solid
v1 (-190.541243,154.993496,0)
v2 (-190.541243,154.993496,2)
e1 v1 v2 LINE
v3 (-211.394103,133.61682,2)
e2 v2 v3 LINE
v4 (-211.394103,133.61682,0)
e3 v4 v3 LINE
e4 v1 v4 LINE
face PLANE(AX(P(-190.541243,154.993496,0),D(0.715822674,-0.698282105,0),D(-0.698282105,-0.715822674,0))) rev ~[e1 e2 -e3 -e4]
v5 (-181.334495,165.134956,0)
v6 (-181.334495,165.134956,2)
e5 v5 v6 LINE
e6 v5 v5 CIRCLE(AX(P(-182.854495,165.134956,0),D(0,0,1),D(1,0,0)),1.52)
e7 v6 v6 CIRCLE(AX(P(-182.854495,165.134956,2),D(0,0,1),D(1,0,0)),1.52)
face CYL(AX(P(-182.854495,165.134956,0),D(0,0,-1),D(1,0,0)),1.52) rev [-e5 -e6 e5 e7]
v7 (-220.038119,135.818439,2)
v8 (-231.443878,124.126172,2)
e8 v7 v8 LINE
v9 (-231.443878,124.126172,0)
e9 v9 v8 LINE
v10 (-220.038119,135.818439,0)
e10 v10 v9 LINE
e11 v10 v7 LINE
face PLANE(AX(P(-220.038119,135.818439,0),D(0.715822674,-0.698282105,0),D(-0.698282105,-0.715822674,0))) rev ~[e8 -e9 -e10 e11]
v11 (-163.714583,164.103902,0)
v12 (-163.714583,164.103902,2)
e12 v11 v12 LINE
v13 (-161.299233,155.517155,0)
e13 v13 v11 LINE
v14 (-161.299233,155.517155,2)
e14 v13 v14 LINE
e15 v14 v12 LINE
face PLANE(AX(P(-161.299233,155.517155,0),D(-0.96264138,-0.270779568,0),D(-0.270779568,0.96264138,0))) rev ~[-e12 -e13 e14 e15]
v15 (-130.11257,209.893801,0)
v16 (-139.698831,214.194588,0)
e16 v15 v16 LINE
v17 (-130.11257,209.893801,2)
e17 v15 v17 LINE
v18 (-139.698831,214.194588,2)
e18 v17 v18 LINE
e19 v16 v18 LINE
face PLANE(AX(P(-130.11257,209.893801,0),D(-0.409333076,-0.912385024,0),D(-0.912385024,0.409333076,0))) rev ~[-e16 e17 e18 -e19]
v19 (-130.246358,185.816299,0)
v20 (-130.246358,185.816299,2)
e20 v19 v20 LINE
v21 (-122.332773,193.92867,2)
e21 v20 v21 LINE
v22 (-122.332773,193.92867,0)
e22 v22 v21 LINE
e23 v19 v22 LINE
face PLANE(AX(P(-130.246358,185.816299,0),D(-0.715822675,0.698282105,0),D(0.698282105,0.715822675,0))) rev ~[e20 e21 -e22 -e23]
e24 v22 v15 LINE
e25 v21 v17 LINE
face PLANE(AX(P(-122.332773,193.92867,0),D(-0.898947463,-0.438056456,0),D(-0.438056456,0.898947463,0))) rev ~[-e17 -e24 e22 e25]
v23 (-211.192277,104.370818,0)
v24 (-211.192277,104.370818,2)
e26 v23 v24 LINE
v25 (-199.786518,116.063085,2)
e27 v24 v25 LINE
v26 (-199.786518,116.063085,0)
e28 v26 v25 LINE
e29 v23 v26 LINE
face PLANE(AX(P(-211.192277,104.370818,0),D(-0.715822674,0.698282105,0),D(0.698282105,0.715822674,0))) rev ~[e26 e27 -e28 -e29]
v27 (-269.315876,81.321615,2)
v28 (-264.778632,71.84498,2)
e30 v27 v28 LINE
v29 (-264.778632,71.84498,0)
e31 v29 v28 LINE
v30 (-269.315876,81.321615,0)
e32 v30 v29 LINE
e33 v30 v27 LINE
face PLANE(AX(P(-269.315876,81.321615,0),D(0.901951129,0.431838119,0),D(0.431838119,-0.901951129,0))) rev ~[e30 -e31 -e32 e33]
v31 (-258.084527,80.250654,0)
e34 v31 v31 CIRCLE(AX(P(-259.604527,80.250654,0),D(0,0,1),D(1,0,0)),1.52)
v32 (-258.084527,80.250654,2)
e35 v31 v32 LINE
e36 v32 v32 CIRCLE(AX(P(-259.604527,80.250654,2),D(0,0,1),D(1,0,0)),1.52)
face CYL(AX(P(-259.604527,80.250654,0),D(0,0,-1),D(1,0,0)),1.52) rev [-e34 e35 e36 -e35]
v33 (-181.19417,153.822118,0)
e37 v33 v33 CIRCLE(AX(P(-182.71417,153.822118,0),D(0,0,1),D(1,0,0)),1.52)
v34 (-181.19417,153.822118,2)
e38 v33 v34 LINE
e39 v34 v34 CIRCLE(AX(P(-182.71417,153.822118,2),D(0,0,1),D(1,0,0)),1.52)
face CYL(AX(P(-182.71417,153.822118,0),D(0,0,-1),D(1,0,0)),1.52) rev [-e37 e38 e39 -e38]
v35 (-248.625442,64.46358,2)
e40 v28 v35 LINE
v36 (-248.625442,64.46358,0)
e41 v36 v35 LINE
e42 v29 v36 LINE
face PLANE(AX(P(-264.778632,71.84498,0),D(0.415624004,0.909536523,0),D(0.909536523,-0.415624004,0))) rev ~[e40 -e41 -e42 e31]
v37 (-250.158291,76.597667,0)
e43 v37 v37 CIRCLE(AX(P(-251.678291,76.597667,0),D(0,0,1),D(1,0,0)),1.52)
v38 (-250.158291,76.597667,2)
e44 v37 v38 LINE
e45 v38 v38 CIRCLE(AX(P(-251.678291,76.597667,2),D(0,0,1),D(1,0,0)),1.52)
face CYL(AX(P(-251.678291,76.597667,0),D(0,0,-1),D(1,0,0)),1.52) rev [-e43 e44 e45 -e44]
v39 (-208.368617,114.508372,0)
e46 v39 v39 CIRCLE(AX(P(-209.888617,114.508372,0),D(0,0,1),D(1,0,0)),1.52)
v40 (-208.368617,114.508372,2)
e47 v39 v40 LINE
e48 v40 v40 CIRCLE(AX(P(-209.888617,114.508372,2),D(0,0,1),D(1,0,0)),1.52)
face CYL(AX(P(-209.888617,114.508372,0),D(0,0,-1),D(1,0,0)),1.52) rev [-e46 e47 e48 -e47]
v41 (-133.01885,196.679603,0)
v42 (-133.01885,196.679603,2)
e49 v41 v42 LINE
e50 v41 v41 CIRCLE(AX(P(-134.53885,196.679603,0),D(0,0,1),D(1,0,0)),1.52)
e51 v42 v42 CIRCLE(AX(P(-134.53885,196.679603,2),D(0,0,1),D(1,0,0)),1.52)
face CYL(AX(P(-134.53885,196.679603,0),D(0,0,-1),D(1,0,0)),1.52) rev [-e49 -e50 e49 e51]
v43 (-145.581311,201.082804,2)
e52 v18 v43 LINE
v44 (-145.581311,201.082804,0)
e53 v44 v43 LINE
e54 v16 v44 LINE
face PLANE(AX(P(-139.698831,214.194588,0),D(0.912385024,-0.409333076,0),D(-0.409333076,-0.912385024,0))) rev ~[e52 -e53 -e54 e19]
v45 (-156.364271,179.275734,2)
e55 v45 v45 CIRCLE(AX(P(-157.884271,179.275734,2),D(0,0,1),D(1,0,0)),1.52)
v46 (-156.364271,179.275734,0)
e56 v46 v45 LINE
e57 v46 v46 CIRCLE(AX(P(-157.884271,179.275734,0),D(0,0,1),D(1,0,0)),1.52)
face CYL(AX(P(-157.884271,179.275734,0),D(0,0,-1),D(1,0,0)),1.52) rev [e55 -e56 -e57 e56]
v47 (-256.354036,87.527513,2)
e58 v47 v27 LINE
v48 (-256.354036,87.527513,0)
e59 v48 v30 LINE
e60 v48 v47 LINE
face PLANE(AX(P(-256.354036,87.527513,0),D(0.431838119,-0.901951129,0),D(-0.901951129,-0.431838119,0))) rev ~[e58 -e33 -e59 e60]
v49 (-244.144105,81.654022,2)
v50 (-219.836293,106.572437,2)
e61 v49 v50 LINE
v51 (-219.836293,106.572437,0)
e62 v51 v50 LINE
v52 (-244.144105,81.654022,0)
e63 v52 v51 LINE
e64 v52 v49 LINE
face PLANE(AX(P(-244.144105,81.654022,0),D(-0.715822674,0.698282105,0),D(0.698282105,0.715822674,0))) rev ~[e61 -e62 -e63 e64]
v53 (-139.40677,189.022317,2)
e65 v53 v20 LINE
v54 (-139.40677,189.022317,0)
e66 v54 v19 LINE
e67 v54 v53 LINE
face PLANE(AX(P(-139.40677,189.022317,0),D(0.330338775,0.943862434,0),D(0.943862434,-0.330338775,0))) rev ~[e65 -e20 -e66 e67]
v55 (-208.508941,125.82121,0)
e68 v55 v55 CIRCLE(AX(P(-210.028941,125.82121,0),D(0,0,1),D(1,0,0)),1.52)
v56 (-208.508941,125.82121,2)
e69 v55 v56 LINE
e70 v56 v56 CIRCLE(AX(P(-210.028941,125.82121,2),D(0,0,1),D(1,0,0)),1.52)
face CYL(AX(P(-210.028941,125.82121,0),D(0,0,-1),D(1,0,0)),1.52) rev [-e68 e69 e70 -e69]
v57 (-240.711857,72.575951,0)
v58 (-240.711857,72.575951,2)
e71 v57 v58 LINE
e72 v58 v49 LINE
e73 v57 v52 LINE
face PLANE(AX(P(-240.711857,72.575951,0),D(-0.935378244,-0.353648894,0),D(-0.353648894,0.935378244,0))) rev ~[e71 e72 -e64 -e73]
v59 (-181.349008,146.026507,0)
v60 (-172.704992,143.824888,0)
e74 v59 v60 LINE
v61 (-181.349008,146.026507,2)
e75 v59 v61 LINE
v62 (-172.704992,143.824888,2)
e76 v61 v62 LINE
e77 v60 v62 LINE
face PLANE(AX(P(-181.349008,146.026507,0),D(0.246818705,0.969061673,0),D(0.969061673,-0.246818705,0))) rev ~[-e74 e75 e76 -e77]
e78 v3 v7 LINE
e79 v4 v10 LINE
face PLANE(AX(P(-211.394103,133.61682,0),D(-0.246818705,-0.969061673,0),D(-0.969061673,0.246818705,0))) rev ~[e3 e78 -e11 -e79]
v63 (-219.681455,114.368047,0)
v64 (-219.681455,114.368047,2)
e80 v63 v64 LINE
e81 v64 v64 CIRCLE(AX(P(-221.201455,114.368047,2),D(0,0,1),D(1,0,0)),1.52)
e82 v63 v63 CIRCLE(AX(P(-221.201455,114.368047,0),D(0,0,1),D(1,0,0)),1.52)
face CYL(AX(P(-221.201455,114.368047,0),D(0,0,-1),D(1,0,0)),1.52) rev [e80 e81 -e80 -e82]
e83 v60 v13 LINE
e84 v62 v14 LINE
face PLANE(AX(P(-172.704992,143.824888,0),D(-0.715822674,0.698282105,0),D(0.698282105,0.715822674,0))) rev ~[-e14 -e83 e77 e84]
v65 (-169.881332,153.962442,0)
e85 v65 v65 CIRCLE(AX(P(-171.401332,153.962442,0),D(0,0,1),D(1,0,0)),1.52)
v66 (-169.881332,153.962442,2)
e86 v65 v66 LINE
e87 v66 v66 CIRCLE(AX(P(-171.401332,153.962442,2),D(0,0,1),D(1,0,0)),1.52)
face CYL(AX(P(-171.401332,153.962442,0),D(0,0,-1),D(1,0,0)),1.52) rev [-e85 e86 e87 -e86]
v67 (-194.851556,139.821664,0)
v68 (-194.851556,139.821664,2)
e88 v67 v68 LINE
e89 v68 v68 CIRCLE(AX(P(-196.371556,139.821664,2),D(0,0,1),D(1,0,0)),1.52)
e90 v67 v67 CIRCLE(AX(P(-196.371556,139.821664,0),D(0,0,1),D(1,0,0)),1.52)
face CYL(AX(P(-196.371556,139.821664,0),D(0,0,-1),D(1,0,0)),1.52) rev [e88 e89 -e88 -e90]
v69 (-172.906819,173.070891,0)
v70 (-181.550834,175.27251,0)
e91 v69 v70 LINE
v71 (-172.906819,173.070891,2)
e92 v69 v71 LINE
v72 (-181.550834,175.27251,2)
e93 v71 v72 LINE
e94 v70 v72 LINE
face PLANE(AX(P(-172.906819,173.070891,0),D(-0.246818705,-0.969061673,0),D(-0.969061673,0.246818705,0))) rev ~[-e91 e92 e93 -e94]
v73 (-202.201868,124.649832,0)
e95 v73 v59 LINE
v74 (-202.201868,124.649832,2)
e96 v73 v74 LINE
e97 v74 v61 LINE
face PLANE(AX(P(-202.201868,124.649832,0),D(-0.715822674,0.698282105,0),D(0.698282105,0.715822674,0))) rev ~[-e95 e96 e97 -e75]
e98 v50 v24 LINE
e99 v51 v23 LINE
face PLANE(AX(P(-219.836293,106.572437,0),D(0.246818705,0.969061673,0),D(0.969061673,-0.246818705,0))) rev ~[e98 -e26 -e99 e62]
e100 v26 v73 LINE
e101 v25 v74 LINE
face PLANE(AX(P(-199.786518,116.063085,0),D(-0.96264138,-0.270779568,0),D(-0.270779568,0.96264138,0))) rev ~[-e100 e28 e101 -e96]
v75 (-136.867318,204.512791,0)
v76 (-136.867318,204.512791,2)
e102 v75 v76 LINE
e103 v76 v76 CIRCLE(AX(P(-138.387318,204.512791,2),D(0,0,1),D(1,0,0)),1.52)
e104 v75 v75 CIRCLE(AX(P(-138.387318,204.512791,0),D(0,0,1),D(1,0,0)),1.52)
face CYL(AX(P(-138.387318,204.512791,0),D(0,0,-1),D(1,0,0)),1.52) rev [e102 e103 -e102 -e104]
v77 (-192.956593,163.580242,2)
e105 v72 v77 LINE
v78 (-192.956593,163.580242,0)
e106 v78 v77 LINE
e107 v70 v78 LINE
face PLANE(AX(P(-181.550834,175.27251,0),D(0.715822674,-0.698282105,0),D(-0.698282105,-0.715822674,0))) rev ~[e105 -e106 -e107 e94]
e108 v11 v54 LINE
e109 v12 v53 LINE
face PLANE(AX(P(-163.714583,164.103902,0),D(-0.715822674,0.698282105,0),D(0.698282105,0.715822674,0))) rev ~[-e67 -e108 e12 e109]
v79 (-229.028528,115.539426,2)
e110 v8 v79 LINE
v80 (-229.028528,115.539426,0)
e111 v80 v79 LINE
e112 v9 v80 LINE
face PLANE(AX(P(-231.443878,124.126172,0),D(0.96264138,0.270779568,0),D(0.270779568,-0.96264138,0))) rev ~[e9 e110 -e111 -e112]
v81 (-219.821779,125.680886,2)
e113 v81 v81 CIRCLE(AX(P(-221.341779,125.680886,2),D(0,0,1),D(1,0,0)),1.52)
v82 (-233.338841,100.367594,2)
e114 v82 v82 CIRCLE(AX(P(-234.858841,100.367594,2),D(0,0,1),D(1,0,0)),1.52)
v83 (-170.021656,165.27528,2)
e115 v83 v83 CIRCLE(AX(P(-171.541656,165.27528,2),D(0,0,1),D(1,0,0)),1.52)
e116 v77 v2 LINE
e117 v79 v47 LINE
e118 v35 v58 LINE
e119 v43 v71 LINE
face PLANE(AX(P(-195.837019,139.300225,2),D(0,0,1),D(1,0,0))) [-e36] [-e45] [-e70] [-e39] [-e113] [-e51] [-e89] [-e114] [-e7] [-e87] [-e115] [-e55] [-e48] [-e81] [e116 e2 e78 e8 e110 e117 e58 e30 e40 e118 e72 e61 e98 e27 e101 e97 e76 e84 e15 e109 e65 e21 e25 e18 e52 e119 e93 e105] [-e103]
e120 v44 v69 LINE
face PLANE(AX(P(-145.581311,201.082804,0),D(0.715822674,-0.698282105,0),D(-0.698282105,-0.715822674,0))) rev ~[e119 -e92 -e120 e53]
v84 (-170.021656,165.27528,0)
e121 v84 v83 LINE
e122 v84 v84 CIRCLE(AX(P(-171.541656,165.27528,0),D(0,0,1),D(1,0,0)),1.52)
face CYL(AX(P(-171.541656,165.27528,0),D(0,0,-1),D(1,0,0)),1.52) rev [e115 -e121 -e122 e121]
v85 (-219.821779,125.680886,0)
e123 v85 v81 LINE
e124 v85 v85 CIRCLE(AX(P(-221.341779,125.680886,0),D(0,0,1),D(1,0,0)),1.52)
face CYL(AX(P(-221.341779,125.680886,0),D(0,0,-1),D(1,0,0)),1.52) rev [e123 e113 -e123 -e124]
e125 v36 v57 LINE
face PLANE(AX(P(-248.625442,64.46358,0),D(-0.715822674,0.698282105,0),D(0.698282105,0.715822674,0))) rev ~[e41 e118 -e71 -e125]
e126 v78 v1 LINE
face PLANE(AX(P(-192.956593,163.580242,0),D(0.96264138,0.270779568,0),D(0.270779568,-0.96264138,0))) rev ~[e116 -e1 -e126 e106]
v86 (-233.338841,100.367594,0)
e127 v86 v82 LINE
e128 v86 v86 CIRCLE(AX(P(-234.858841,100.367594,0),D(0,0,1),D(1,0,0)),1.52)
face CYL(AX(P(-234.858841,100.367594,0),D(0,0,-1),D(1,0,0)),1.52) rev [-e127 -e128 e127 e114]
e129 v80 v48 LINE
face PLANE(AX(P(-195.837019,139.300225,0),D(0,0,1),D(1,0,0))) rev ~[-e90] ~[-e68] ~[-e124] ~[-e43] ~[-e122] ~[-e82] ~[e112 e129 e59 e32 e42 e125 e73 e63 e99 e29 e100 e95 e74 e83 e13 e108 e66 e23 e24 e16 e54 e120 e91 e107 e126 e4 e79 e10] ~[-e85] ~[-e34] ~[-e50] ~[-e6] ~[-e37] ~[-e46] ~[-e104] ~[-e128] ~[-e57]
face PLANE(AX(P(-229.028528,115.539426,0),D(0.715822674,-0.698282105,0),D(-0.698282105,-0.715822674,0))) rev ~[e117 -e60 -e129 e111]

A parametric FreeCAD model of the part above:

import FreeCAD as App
import Part
import Sketcher

V = App.Vector

doc = App.newDocument("Part")
body = doc.addObject("PartDesign::Body", "Body")

# Sketch on XY plane
sketch1 = body.newObject("Sketcher::SketchObject", "Sketch")
sketch1.AttachmentSupport = (doc.getObject("XY_Plane"), [""])
sketch1.MapMode = "FlatFace"
sketch1.addGeometry([
    Part.LineSegment(V(-122.332773, 193.92867, 0), V(-130.11257, 209.893801, 0)),  # 0
    Part.LineSegment(V(-130.11257, 209.893801, 0), V(-139.698831, 214.194588, 0)),  # 1
    Part.LineSegment(V(-139.698831, 214.194588, 0), V(-145.581311, 201.082804, 0)),  # 2
    Part.LineSegment(V(-145.581311, 201.082804, 0), V(-172.906819, 173.070891, 0)),  # 3
    Part.LineSegment(V(-172.906819, 173.070891, 0), V(-181.550834, 175.27251, 0)),  # 4
    Part.LineSegment(V(-181.550834, 175.27251, 0), V(-192.956593, 163.580242, 0)),  # 5
    Part.LineSegment(V(-192.956593, 163.580242, 0), V(-190.541243, 154.993496, 0)),  # 6
    Part.LineSegment(V(-190.541243, 154.993496, 0), V(-211.394103, 133.61682, 0)),  # 7
    Part.LineSegment(V(-211.394103, 133.61682, 0), V(-220.038119, 135.818439, 0)),  # 8
    Part.LineSegment(V(-220.038119, 135.818439, 0), V(-231.443878, 124.126172, 0)),  # 9
    Part.LineSegment(V(-231.443878, 124.126172, 0), V(-229.028528, 115.539426, 0)),  # 10
    Part.LineSegment(V(-229.028528, 115.539426, 0), V(-256.354036, 87.527513, 0)),  # 11
    Part.LineSegment(V(-256.354036, 87.527513, 0), V(-269.315876, 81.321615, 0)),  # 12
    Part.LineSegment(V(-269.315876, 81.321615, 0), V(-264.778632, 71.84498, 0)),  # 13
    Part.LineSegment(V(-264.778632, 71.84498, 0), V(-248.625442, 64.46358, 0)),  # 14
    Part.LineSegment(V(-248.625442, 64.46358, 0), V(-240.711857, 72.575951, 0)),  # 15
    Part.LineSegment(V(-240.711857, 72.575951, 0), V(-244.144105, 81.654022, 0)),  # 16
    Part.LineSegment(V(-244.144105, 81.654022, 0), V(-219.836293, 106.572437, 0)),  # 17
    Part.LineSegment(V(-219.836293, 106.572437, 0), V(-211.192277, 104.370818, 0)),  # 18
    Part.LineSegment(V(-211.192277, 104.370818, 0), V(-199.786518, 116.063085, 0)),  # 19
    Part.LineSegment(V(-199.786518, 116.063085, 0), V(-202.201868, 124.649832, 0)),  # 20
    Part.LineSegment(V(-202.201868, 124.649832, 0), V(-181.349008, 146.026507, 0)),  # 21
    Part.LineSegment(V(-181.349008, 146.026507, 0), V(-172.704992, 143.824888, 0)),  # 22
    Part.LineSegment(V(-172.704992, 143.824888, 0), V(-161.299233, 155.517155, 0)),  # 23
    Part.LineSegment(V(-161.299233, 155.517155, 0), V(-163.714583, 164.103902, 0)),  # 24
    Part.LineSegment(V(-163.714583, 164.103902, 0), V(-139.40677, 189.022317, 0)),  # 25
    Part.LineSegment(V(-139.40677, 189.022317, 0), V(-130.246358, 185.816299, 0)),  # 26
    Part.LineSegment(V(-130.246358, 185.816299, 0), V(-122.332773, 193.92867, 0)),  # 27
    Part.Circle(V(-259.604527, 80.250654, 0), V(0, 0, 1), 1.52),  # 28
    Part.Circle(V(-251.678291, 76.597667, 0), V(0, 0, 1), 1.52),  # 29
    Part.Circle(V(-234.858841, 100.367594, 0), V(0, 0, 1), 1.52),  # 30
    Part.Circle(V(-221.201455, 114.368047, 0), V(0, 0, 1), 1.52),  # 31
    Part.Circle(V(-209.888617, 114.508372, 0), V(0, 0, 1), 1.52),  # 32
    Part.Circle(V(-221.341779, 125.680886, 0), V(0, 0, 1), 1.52),  # 33
    Part.Circle(V(-210.028941, 125.82121, 0), V(0, 0, 1), 1.52),  # 34
    Part.Circle(V(-196.371556, 139.821664, 0), V(0, 0, 1), 1.52),  # 35
    Part.Circle(V(-182.71417, 153.822118, 0), V(0, 0, 1), 1.52),  # 36
    Part.Circle(V(-171.401332, 153.962442, 0), V(0, 0, 1), 1.52),  # 37
    Part.Circle(V(-182.854495, 165.134956, 0), V(0, 0, 1), 1.52),  # 38
    Part.Circle(V(-171.541656, 165.27528, 0), V(0, 0, 1), 1.52),  # 39
    Part.Circle(V(-157.884271, 179.275734, 0), V(0, 0, 1), 1.52),  # 40
    Part.Circle(V(-134.53885, 196.679603, 0), V(0, 0, 1), 1.52),  # 41
    Part.Circle(V(-138.387318, 204.512791, 0), V(0, 0, 1), 1.52),  # 42
], False)
sketch1.addConstraint([
    Sketcher.Constraint("Coincident", 0, 2, 1, 1),
    Sketcher.Constraint("Coincident", 1, 2, 2, 1),
    Sketcher.Constraint("Coincident", 2, 2, 3, 1),
    Sketcher.Constraint("Coincident", 3, 2, 4, 1),
    Sketcher.Constraint("Coincident", 4, 2, 5, 1),
    Sketcher.Constraint("Coincident", 5, 2, 6, 1),
    Sketcher.Constraint("Coincident", 6, 2, 7, 1),
    Sketcher.Constraint("Coincident", 7, 2, 8, 1),
    Sketcher.Constraint("Coincident", 8, 2, 9, 1),
    Sketcher.Constraint("Coincident", 9, 2, 10, 1),
    Sketcher.Constraint("Coincident", 10, 2, 11, 1),
    Sketcher.Constraint("Coincident", 11, 2, 12, 1),
    Sketcher.Constraint("Coincident", 12, 2, 13, 1),
    Sketcher.Constraint("Coincident", 13, 2, 14, 1),
    Sketcher.Constraint("Coincident", 14, 2, 15, 1),
    Sketcher.Constraint("Coincident", 15, 2, 16, 1),
    Sketcher.Constraint("Coincident", 16, 2, 17, 1),
    Sketcher.Constraint("Coincident", 17, 2, 18, 1),
    Sketcher.Constraint("Coincident", 18, 2, 19, 1),
    Sketcher.Constraint("Coincident", 19, 2, 20, 1),
    Sketcher.Constraint("Coincident", 20, 2, 21, 1),
    Sketcher.Constraint("Coincident", 21, 2, 22, 1),
    Sketcher.Constraint("Coincident", 22, 2, 23, 1),
    Sketcher.Constraint("Coincident", 23, 2, 24, 1),
    Sketcher.Constraint("Coincident", 24, 2, 25, 1),
    Sketcher.Constraint("Coincident", 25, 2, 26, 1),
    Sketcher.Constraint("Coincident", 26, 2, 27, 1),
    Sketcher.Constraint("Coincident", 27, 2, 0, 1),
    Sketcher.Constraint("Equal", 28, 29),
    Sketcher.Constraint("Equal", 29, 30),
    Sketcher.Constraint("Equal", 30, 31),
    Sketcher.Constraint("Equal", 31, 32),
    Sketcher.Constraint("Equal", 32, 33),
    Sketcher.Constraint("Equal", 33, 34),
    Sketcher.Constraint("Equal", 34, 35),
    Sketcher.Constraint("Equal", 35, 36),
    Sketcher.Constraint("Equal", 36, 37),
    Sketcher.Constraint("Equal", 37, 38),
    Sketcher.Constraint("Equal", 38, 39),
    Sketcher.Constraint("Equal", 39, 40),
    Sketcher.Constraint("Equal", 40, 41),
    Sketcher.Constraint("Equal", 41, 42),
    Sketcher.Constraint("Perpendicular", 1, 2),
    Sketcher.Constraint("Parallel", 3, 5),
    Sketcher.Constraint("Parallel", 5, 7),
    Sketcher.Constraint("Parallel", 4, 8),
    Sketcher.Constraint("Parallel", 7, 9),
    Sketcher.Constraint("Parallel", 6, 10),
    Sketcher.Constraint("Parallel", 9, 11),
    Sketcher.Constraint("Perpendicular", 12, 13),
    Sketcher.Constraint("Parallel", 11, 15),
    Sketcher.Constraint("Parallel", 15, 17),
    Sketcher.Constraint("Parallel", 8, 18),
    Sketcher.Constraint("Parallel", 17, 19),
    Sketcher.Constraint("Parallel", 10, 20),
    Sketcher.Constraint("Parallel", 19, 21),
    Sketcher.Constraint("Parallel", 18, 22),
    Sketcher.Constraint("Parallel", 21, 23),
    Sketcher.Constraint("Parallel", 20, 24),
    Sketcher.Constraint("Parallel", 23, 25),
    Sketcher.Constraint("Parallel", 25, 27),
    Sketcher.Constraint("Equal", 4, 6),
    Sketcher.Constraint("Equal", 6, 8),
    Sketcher.Constraint("Equal", 5, 9),
    Sketcher.Constraint("Equal", 8, 10),
    Sketcher.Constraint("Equal", 3, 11),
    Sketcher.Constraint("Equal", 2, 12),
    Sketcher.Constraint("Equal", 1, 13),
    Sketcher.Constraint("Equal", 0, 14),
    Sketcher.Constraint("Equal", 10, 18),
    Sketcher.Constraint("Equal", 9, 19),
    Sketcher.Constraint("Equal", 18, 20),
    Sketcher.Constraint("Equal", 7, 21),
    Sketcher.Constraint("Equal", 20, 22),
    Sketcher.Constraint("Equal", 19, 23),
    Sketcher.Constraint("Equal", 22, 24),
    Sketcher.Constraint("Equal", 17, 25),
    Sketcher.Constraint("Equal", 16, 26),
    Sketcher.Constraint("Equal", 15, 27),
    Sketcher.Constraint("Diameter", 28, 3.04),
    Sketcher.Constraint("DistanceY", -1, 1, 0, 2, 209.893801),
    Sketcher.Constraint("DistanceY", -1, 1, 26, 2, 185.816299),
    Sketcher.Constraint("DistanceX", 30, 3, 34, 3, 24.829899),
    Sketcher.Constraint("DistanceX", 31, 3, 35, 3, 24.829899),
    Sketcher.Constraint("DistanceX", 35, 3, 39, 3, 24.829899),
    Sketcher.Constraint("DistanceX", 36, 3, 40, 3, 24.829899),
    Sketcher.Constraint("DistanceX", 40, 3, 0, 2, 27.771701),
    Sketcher.Constraint("DistanceY", 41, 3, 2, 2, 4.4032),
    Sketcher.Constraint("DistanceX", 5, 2, 38, 3, 10.102099),
    Sketcher.Constraint("DistanceX", 9, 2, 33, 3, 10.102099),
    Sketcher.Constraint("DistanceY", 12, 2, 11, 2, 6.205898),
    Sketcher.Constraint("DistanceY", 14, 2, 13, 2, 7.381401),
    Sketcher.Constraint("DistanceX", 32, 3, 19, 2, 10.102099),
    Sketcher.Constraint("DistanceX", 37, 3, 23, 2, 10.102099),
    Sketcher.Constraint("DistanceX", 40, 3, 25, 2, 18.4775),
    Sketcher.Constraint("Distance", 2, 14.37089),
    Sketcher.Constraint("Distance", 7, 29.863088),
    Sketcher.Constraint("Distance", 16, 9.705241),
    Sketcher.Constraint("DistanceX", 29, 3, -1, 1, 251.678291),
    Sketcher.Constraint("DistanceX", 30, 3, -1, 1, 234.858841),
    Sketcher.Constraint("DistanceY", -1, 1, 32, 3, 114.508372),
    Sketcher.Constraint("DistanceX", 33, 3, -1, 1, 221.341779),
    Sketcher.Constraint("DistanceY", -1, 1, 34, 3, 125.82121),
    Sketcher.Constraint("DistanceX", 36, 3, -1, 1, 182.71417),
    Sketcher.Constraint("DistanceX", 37, 3, -1, 1, 171.401332),
    Sketcher.Constraint("DistanceY", -1, 1, 39, 3, 165.27528),
    Sketcher.Constraint("DistanceX", 41, 3, -1, 1, 134.53885),
    Sketcher.Constraint("DistanceY", -1, 1, 42, 3, 204.512791),
    Sketcher.Constraint("DistanceX", 1, 2, -1, 1, 139.698831),
    Sketcher.Constraint("DistanceY", -1, 1, 1, 2, 214.194588),
    Sketcher.Constraint("DistanceX", 3, 2, -1, 1, 172.906819),
    Sketcher.Constraint("DistanceY", -1, 1, 3, 2, 173.070891),
    Sketcher.Constraint("DistanceY", -1, 1, 4, 2, 175.27251),
    Sketcher.Constraint("DistanceY", -1, 1, 7, 2, 133.61682),
    Sketcher.Constraint("DistanceX", 8, 2, -1, 1, 220.038119),
    Sketcher.Constraint("DistanceY", -1, 1, 15, 2, 72.575951),
    Sketcher.Constraint("DistanceY", 28, 3, 30, 3, 20.11694),
    Sketcher.Constraint("DistanceY", 29, 3, 31, 3, 37.77038),
    Sketcher.Constraint("DistanceX", 28, 3, 31, 3, 38.403072),
    Sketcher.Constraint("DistanceX", 31, 3, 32, 3, 11.312838),
    Sketcher.Constraint("DistanceY", 30, 3, 32, 3, 14.140778),
    Sketcher.Constraint("DistanceY", 31, 3, 33, 3, 11.312838),
    Sketcher.Constraint("DistanceY", 30, 3, 33, 3, 25.313292),
    Sketcher.Constraint("DistanceY", 32, 3, 35, 3, 25.313292),
    Sketcher.Constraint("DistanceY", 31, 3, 36, 3, 39.45407),
    Sketcher.Constraint("DistanceY", 35, 3, 37, 3, 14.140778),
    Sketcher.Constraint("DistanceY", 36, 3, 38, 3, 11.312838),
    Sketcher.Constraint("DistanceY", 38, 3, 40, 3, 14.140778),
    Sketcher.Constraint("DistanceX", 39, 3, 42, 3, 33.154339),
])
pad1 = body.newObject("PartDesign::Pad", "Pad")
pad1.Profile = sketch1
pad1.Length = 2

doc.recompute()
